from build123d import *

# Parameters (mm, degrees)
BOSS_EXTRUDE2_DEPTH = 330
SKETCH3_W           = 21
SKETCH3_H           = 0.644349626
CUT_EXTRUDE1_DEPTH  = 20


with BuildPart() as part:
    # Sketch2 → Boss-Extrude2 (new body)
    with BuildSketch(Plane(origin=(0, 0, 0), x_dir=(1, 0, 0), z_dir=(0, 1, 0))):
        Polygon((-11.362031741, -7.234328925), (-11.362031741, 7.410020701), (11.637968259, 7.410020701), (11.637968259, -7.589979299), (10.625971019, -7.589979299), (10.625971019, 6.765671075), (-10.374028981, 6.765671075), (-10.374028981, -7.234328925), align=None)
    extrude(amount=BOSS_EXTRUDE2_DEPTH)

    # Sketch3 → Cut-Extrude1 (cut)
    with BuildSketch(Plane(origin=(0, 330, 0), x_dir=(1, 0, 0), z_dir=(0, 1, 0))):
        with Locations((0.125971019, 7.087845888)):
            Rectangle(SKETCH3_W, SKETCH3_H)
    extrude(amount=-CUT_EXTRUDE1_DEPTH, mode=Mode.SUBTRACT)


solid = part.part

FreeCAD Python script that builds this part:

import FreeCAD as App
import Part
import Sketcher
from FreeCAD import Vector
Q = App.Units.Quantity

doc = App.newDocument("Part")
body = doc.addObject("PartDesign::Body", "Body")

sketch1 = body.newObject("Sketcher::SketchObject", "Sketch")
sketch1.AttachmentSupport = (doc.getObject("XZ_Plane"), [""])
sketch1.MapMode = "FlatFace"
sketch1.addGeometry([
    Part.LineSegment(Vector(-11.4, -7.4, 0), Vector(-11.4, 7.2, 0)),
    Part.LineSegment(Vector(-11.4, 7.2, 0), Vector(-10.4, 7.2, 0)),
    Part.LineSegment(Vector(-10.4, 7.2, 0), Vector(-10.4, -6.8, 0)),
    Part.LineSegment(Vector(-10.4, -6.8, 0), Vector(10.6, -6.8, 0)),
    Part.LineSegment(Vector(10.6, -6.8, 0), Vector(10.6, 7.6, 0)),
    Part.LineSegment(Vector(10.6, 7.6, 0), Vector(11.6, 7.6, 0)),
    Part.LineSegment(Vector(11.6, 7.6, 0), Vector(11.6, -7.4, 0)),
    Part.LineSegment(Vector(11.6, -7.4, 0), Vector(-11.4, -7.4, 0)),
], False)
sketch1.addConstraint([
    Sketcher.Constraint("Coincident", 0, 2, 1, 1),
    Sketcher.Constraint("Coincident", 1, 2, 2, 1),
    Sketcher.Constraint("Coincident", 2, 2, 3, 1),
    Sketcher.Constraint("Coincident", 3, 2, 4, 1),
    Sketcher.Constraint("Coincident", 4, 2, 5, 1),
    Sketcher.Constraint("Coincident", 5, 2, 6, 1),
    Sketcher.Constraint("Coincident", 6, 2, 7, 1),
    Sketcher.Constraint("Coincident", 7, 2, 0, 1),
    Sketcher.Constraint("Vertical", 0),
    Sketcher.Constraint("Horizontal", 1),
    Sketcher.Constraint("Vertical", 2),
    Sketcher.Constraint("Horizontal", 3),
    Sketcher.Constraint("Vertical", 4),
    Sketcher.Constraint("Horizontal", 5),
    Sketcher.Constraint("Vertical", 6),
    Sketcher.Constraint("Horizontal", 7),
    Sketcher.Constraint("DistanceX", 3, 1, 3, 2, Q("21 mm")),
    Sketcher.Constraint("DistanceX", 7, 2, 7, 1, Q("23 mm")),
    Sketcher.Constraint("DistanceY", 2, 2, 2, 1, Q("14 mm")),
    Sketcher.Constraint("DistanceY", 6, 2, 6, 1, Q("15 mm")),
    Sketcher.Constraint("DistanceY", 0, 1, 0, 2, Q("14.64435 mm")),
    Sketcher.Constraint("DistanceX", 1, 1, 1, 2, Q("0.988003 mm")),
    Sketcher.Constraint("DistanceX", 0, 2, -1, 1, Q("11.362032 mm")),
    Sketcher.Constraint("DistanceY", -1, 1, 0, 2, Q("7.234329 mm")),
])
pad1 = body.newObject("PartDesign::Pad", "Pad")
pad1.Profile = sketch1
pad1.Length = 330
pad1.Reversed = True

sketch2 = body.newObject("Sketcher::SketchObject", "Sketch001")
sketch2.AttachmentSupport = (doc.getObject("XZ_Plane"), [""])
sketch2.MapMode = "FlatFace"
sketch2.AttachmentOffset = App.Placement(Vector(0, 0, -330), App.Rotation())
sketch2.addGeometry([
    Part.LineSegment(Vector(-10.4, -7.4, 0), Vector(-10.4, -6.8, 0)),
    Part.LineSegment(Vector(-10.4, -6.8, 0), Vector(10.6, -6.8, 0)),
    Part.LineSegment(Vector(10.6, -6.8, 0), Vector(10.6, -7.4, 0)),
    Part.LineSegment(Vector(10.6, -7.4, 0), Vector(-10.4, -7.4, 0)),
], False)
sketch2.addConstraint([
    Sketcher.Constraint("Coincident", 0, 2, 1, 1),
    Sketcher.Constraint("Coincident", 1, 2, 2, 1),
    Sketcher.Constraint("Coincident", 2, 2, 3, 1),
    Sketcher.Constraint("Coincident", 3, 2, 0, 1),
    Sketcher.Constraint("Vertical", 0),
    Sketcher.Constraint("Horizontal", 1),
    Sketcher.Constraint("Vertical", 2),
    Sketcher.Constraint("Horizontal", 3),
    Sketcher.Constraint("DistanceX", 1, 1, 1, 2, Q("21 mm")),
    Sketcher.Constraint("DistanceY", 0, 1, 0, 2, Q("0.64435 mm")),
    Sketcher.Constraint("DistanceX", 0, 2, -1, 1, Q("10.374029 mm")),
    Sketcher.Constraint("DistanceY", 0, 2, -1, 1, Q("6.765671 mm")),
])
pocket1 = body.newObject("PartDesign::Pocket", "Pocket")
pocket1.Profile = sketch2
pocket1.Length = 20
pocket1.Reversed = True

doc.recompute()
